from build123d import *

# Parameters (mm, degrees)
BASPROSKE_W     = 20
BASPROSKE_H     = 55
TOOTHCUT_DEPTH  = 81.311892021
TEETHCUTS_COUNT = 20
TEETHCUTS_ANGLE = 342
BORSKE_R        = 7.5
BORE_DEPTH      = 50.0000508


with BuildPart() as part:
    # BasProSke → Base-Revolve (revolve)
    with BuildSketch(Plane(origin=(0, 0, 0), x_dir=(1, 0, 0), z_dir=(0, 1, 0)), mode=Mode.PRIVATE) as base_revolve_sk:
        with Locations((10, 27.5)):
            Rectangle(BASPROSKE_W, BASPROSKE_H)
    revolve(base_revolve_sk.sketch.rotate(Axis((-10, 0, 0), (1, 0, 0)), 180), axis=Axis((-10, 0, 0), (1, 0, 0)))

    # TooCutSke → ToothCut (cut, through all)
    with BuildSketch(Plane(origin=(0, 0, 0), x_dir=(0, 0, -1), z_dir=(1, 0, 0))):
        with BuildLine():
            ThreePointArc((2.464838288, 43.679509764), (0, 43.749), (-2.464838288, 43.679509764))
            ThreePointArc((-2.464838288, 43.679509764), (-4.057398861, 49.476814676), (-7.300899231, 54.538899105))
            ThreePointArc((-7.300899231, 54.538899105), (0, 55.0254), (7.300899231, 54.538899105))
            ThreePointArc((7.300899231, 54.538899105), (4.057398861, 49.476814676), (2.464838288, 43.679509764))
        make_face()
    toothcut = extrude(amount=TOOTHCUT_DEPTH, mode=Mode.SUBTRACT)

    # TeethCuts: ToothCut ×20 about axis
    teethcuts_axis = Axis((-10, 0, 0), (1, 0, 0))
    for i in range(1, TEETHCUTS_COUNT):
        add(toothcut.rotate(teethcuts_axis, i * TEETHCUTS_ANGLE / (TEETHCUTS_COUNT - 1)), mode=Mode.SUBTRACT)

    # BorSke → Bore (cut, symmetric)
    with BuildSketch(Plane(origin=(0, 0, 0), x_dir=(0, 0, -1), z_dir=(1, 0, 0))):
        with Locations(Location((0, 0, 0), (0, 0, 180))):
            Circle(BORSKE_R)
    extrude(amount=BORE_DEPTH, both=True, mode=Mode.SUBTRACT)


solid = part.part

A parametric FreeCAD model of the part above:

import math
import FreeCAD as App
import Part
import Sketcher
from FreeCAD import Vector


def add_polygon(sketch, points):
    """Adds a closed chain of lines whose ends are joined by coincident constraints."""
    first, n = sketch.GeometryCount, len(points)
    for a, b in zip(points, points[1:] + points[:1]):
        sketch.addGeometry(Part.LineSegment(App.Vector(*a, 0), App.Vector(*b, 0)), False)
    for i in range(n):
        sketch.addConstraint(Sketcher.Constraint("Coincident", first + i, 2, first + (i + 1) % n, 1))

doc = App.newDocument("Part")
body = doc.addObject("PartDesign::Body", "Body")

sketch1 = body.newObject("Sketcher::SketchObject", "Sketch")
sketch1.AttachmentSupport = (doc.getObject("XZ_Plane"), [""])
sketch1.MapMode = "FlatFace"
add_polygon(sketch1, [(0, -55), (0, 0), (20, 0), (20, -55)])
sketch1.addConstraint([
    Sketcher.Constraint("Vertical", 0),
    Sketcher.Constraint("Horizontal", 1),
    Sketcher.Constraint("Vertical", 2),
    Sketcher.Constraint("Horizontal", 3),
    Sketcher.Constraint("Coincident", 0, 2, -1, 1),
    Sketcher.Constraint("DistanceX", 1, 1, 1, 2, 20.0),
    Sketcher.Constraint("DistanceY", 0, 1, 0, 2, 55.0),
])
revolution = body.newObject("PartDesign::Revolution", "Revolution")
revolution.Profile = sketch1
revolution.ReferenceAxis = (sketch1, ["H_Axis"])
revolution.Angle = 360

sketch2 = body.newObject("Sketcher::SketchObject", "Sketch001")
sketch2.AttachmentSupport = (doc.getObject("YZ_Plane"), [""])
sketch2.MapMode = "FlatFace"
sketch2.addGeometry([
    Part.ArcOfCircle(Part.Circle(Vector(0, 0, 0), Vector(0, 0, 1), 43.749), math.radians(-3.22978), math.radians(3.22978)),
    Part.ArcOfCircle(Part.Circle(Vector(41.340468, -22.327589, 0), Vector(0, 0, 1), 20), math.radians(48.70611), math.radians(83.283769)),
    Part.ArcOfCircle(Part.Circle(Vector(0, 0, 0), Vector(0, 0, 1), 55.0254), math.radians(-7.624623), math.radians(7.624623)),
    Part.ArcOfCircle(Part.Circle(Vector(41.340468, 22.327589, 0), Vector(0, 0, 1), 20), math.radians(-83.283769), math.radians(-48.70611)),
], False)
sketch2.addConstraint([
    Sketcher.Constraint("Coincident", 0, 1, 1, 2),
    Sketcher.Constraint("Coincident", 1, 1, 2, 1),
    Sketcher.Constraint("Coincident", 2, 2, 3, 2),
    Sketcher.Constraint("Coincident", 3, 1, 0, 2),
    Sketcher.Constraint("Coincident", 0, 3, -1, 1),
    Sketcher.Constraint("Coincident", 2, 3, -1, 1),
    Sketcher.Constraint("Equal", 1, 3),
    Sketcher.Constraint("Symmetric", 1, 3, 3, 3, -1),
    Sketcher.Constraint("Radius", 1, 20.0),
    Sketcher.Constraint("Radius", 0, 43.749),
    Sketcher.Constraint("Radius", 2, 55.0254),
    Sketcher.Constraint("DistanceX", -1, 1, 1, 1, 54.538899),
    Sketcher.Constraint("DistanceX", -1, 1, 1, 3, 41.340468),
])
pocket1 = body.newObject("PartDesign::Pocket", "Pocket")
pocket1.Profile = sketch2
pocket1.Type = "ThroughAll"
pocket1.Reversed = True
doc.recompute()

polarpattern = body.newObject("PartDesign::PolarPattern", "PolarPattern")
polarpattern.Originals = [pocket1]
polarpattern.Axis = (doc.getObject("X_Axis"), [""])
polarpattern.Angle = 360
polarpattern.Occurrences = 20
body.Tip = polarpattern

sketch3 = body.newObject("Sketcher::SketchObject", "Sketch002")
sketch3.AttachmentSupport = (doc.getObject("YZ_Plane"), [""])
sketch3.MapMode = "FlatFace"
sketch3.addGeometry(Part.Circle(Vector(0, 0, 0), Vector(0, 0, 1), 7.5), False)
sketch3.addConstraint([
    Sketcher.Constraint("Coincident", 0, 3, -1, 1),
    Sketcher.Constraint("Diameter", 0, 15.0),
])
pocket2 = body.newObject("PartDesign::Pocket", "Pocket001")
pocket2.Profile = sketch3
pocket2.Length = 100.000102
pocket2.Midplane = True

doc.recompute()
